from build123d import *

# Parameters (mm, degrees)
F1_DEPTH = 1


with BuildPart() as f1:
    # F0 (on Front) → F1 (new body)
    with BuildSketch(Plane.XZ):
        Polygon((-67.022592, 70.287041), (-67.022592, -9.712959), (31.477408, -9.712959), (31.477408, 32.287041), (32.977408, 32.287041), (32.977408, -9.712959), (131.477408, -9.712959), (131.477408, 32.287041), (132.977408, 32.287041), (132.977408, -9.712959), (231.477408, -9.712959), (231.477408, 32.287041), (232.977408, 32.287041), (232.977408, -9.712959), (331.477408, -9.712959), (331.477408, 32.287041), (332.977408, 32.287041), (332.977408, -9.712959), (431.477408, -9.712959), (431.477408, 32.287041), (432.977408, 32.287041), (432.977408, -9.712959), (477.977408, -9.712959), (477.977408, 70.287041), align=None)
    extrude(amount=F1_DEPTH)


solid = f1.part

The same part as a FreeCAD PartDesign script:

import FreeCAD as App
import Part
import Sketcher

V = App.Vector


def add_polygon(sketch, points):
    """Adds a closed chain of lines whose ends are joined by coincident constraints."""
    first, n = sketch.GeometryCount, len(points)
    for a, b in zip(points, points[1:] + points[:1]):
        sketch.addGeometry(Part.LineSegment(App.Vector(*a, 0), App.Vector(*b, 0)), False)
    for i in range(n):
        sketch.addConstraint(Sketcher.Constraint("Coincident", first + i, 2, first + (i + 1) % n, 1))

doc = App.newDocument("Part")
params = doc.addObject("Spreadsheet::Sheet", "Params")
for row, (alias, value) in enumerate([
    ("sketch1_width", "45 mm"),
    ("sketch1_width2", "545 mm"),
    ("sketch1_height", "80 mm"),
    ("sketch1_height2", "42 mm"),
    ("sketch1_width3", "98.5 mm"),
    ("pad1_length", "1 mm"),
], start=1):
    params.set(f"A{row}", alias)
    params.set(f"B{row}", "=" + value)
    params.setAlias(f"B{row}", alias)

body = doc.addObject("PartDesign::Body", "Body")

# Sketch on XZ plane
sketch1 = doc.addObject("Sketcher::SketchObject", "Sketch")
body.addObject(sketch1)
sketch1.AttachmentSupport = (doc.XZ_Plane, [""])
sketch1.MapMode = "FlatFace"
add_polygon(sketch1, [(-67, 70.3), (-67, -9.7), (31.5, -9.7), (31.5, 32.3), (33, 32.3), (33, -9.7), (131.5, -9.7), (131.5, 32.3), (133, 32.3), (133, -9.7), (231.5, -9.7), (231.5, 32.3), (233, 32.3), (233, -9.7), (331.5, -9.7), (331.5, 32.3), (333, 32.3), (333, -9.7), (431.5, -9.7), (431.5, 32.3), (433, 32.3), (433, -9.7), (478, -9.7), (478, 70.3)])  # lines 0-23
sketch1.addConstraint(Sketcher.Constraint("Vertical", 0))
sketch1.addConstraint(Sketcher.Constraint("Horizontal", 1))
sketch1.addConstraint(Sketcher.Constraint("Vertical", 2))
sketch1.addConstraint(Sketcher.Constraint("Horizontal", 3))
sketch1.addConstraint(Sketcher.Constraint("Vertical", 4))
sketch1.addConstraint(Sketcher.Constraint("Horizontal", 5))
sketch1.addConstraint(Sketcher.Constraint("Vertical", 6))
sketch1.addConstraint(Sketcher.Constraint("Horizontal", 7))
sketch1.addConstraint(Sketcher.Constraint("Vertical", 8))
sketch1.addConstraint(Sketcher.Constraint("Horizontal", 9))
sketch1.addConstraint(Sketcher.Constraint("Vertical", 10))
sketch1.addConstraint(Sketcher.Constraint("Horizontal", 11))
sketch1.addConstraint(Sketcher.Constraint("Vertical", 12))
sketch1.addConstraint(Sketcher.Constraint("Horizontal", 13))
sketch1.addConstraint(Sketcher.Constraint("Vertical", 14))
sketch1.addConstraint(Sketcher.Constraint("Horizontal", 15))
sketch1.addConstraint(Sketcher.Constraint("Vertical", 16))
sketch1.addConstraint(Sketcher.Constraint("Horizontal", 17))
sketch1.addConstraint(Sketcher.Constraint("Vertical", 18))
sketch1.addConstraint(Sketcher.Constraint("Horizontal", 19))
sketch1.addConstraint(Sketcher.Constraint("Vertical", 20))
sketch1.addConstraint(Sketcher.Constraint("Horizontal", 21))
sketch1.addConstraint(Sketcher.Constraint("Vertical", 22))
sketch1.addConstraint(Sketcher.Constraint("Horizontal", 23))
sketch1.addConstraint(Sketcher.Constraint("Horizontal", 1, 2, 4, 2))
sketch1.addConstraint(Sketcher.Constraint("Horizontal", 3, 2, 6, 2))
sketch1.addConstraint(Sketcher.Constraint("Horizontal", 5, 2, 8, 2))
sketch1.addConstraint(Sketcher.Constraint("Horizontal", 7, 2, 10, 2))
sketch1.addConstraint(Sketcher.Constraint("Horizontal", 9, 2, 12, 2))
sketch1.addConstraint(Sketcher.Constraint("Horizontal", 11, 2, 14, 2))
sketch1.addConstraint(Sketcher.Constraint("Horizontal", 13, 2, 16, 2))
sketch1.addConstraint(Sketcher.Constraint("Horizontal", 15, 2, 18, 2))
sketch1.addConstraint(Sketcher.Constraint("Horizontal", 17, 2, 20, 2))
sketch1.addConstraint(Sketcher.Constraint("Equal", 1, 5))
sketch1.addConstraint(Sketcher.Constraint("Equal", 3, 7))
sketch1.addConstraint(Sketcher.Constraint("Equal", 5, 9))
sketch1.addConstraint(Sketcher.Constraint("Equal", 7, 11))
sketch1.addConstraint(Sketcher.Constraint("Equal", 9, 13))
sketch1.addConstraint(Sketcher.Constraint("Equal", 11, 15))
sketch1.addConstraint(Sketcher.Constraint("Equal", 13, 17))
sketch1.addConstraint(Sketcher.Constraint("Equal", 15, 19))
sketch1.addConstraint(Sketcher.Constraint("DistanceX", 21, 1, 21, 2, 45.0))
sketch1.addConstraint(Sketcher.Constraint("DistanceX", 23, 2, 23, 1, 545.0))
sketch1.addConstraint(Sketcher.Constraint("DistanceY", 0, 2, 0, 1, 80.0))
sketch1.addConstraint(Sketcher.Constraint("DistanceY", 2, 1, 2, 2, 42.0))
sketch1.addConstraint(Sketcher.Constraint("DistanceX", 1, 1, 1, 2, 98.5))
sketch1.addConstraint(Sketcher.Constraint("DistanceY", 0, 2, -1, 1, 9.712959))
sketch1.addConstraint(Sketcher.Constraint("DistanceX", -1, 1, 1, 2, 31.477408))
sketch1.setExpression("Constraints[65]", "Params.sketch1_width")
sketch1.setExpression("Constraints[66]", "Params.sketch1_width2")
sketch1.setExpression("Constraints[67]", "Params.sketch1_height")
sketch1.setExpression("Constraints[68]", "Params.sketch1_height2")
sketch1.setExpression("Constraints[69]", "Params.sketch1_width3")
pad1 = doc.addObject("PartDesign::Pad", "Pad")
body.addObject(pad1)
pad1.Profile = sketch1
pad1.setExpression("Length", "Params.pad1_length")

doc.recompute()
